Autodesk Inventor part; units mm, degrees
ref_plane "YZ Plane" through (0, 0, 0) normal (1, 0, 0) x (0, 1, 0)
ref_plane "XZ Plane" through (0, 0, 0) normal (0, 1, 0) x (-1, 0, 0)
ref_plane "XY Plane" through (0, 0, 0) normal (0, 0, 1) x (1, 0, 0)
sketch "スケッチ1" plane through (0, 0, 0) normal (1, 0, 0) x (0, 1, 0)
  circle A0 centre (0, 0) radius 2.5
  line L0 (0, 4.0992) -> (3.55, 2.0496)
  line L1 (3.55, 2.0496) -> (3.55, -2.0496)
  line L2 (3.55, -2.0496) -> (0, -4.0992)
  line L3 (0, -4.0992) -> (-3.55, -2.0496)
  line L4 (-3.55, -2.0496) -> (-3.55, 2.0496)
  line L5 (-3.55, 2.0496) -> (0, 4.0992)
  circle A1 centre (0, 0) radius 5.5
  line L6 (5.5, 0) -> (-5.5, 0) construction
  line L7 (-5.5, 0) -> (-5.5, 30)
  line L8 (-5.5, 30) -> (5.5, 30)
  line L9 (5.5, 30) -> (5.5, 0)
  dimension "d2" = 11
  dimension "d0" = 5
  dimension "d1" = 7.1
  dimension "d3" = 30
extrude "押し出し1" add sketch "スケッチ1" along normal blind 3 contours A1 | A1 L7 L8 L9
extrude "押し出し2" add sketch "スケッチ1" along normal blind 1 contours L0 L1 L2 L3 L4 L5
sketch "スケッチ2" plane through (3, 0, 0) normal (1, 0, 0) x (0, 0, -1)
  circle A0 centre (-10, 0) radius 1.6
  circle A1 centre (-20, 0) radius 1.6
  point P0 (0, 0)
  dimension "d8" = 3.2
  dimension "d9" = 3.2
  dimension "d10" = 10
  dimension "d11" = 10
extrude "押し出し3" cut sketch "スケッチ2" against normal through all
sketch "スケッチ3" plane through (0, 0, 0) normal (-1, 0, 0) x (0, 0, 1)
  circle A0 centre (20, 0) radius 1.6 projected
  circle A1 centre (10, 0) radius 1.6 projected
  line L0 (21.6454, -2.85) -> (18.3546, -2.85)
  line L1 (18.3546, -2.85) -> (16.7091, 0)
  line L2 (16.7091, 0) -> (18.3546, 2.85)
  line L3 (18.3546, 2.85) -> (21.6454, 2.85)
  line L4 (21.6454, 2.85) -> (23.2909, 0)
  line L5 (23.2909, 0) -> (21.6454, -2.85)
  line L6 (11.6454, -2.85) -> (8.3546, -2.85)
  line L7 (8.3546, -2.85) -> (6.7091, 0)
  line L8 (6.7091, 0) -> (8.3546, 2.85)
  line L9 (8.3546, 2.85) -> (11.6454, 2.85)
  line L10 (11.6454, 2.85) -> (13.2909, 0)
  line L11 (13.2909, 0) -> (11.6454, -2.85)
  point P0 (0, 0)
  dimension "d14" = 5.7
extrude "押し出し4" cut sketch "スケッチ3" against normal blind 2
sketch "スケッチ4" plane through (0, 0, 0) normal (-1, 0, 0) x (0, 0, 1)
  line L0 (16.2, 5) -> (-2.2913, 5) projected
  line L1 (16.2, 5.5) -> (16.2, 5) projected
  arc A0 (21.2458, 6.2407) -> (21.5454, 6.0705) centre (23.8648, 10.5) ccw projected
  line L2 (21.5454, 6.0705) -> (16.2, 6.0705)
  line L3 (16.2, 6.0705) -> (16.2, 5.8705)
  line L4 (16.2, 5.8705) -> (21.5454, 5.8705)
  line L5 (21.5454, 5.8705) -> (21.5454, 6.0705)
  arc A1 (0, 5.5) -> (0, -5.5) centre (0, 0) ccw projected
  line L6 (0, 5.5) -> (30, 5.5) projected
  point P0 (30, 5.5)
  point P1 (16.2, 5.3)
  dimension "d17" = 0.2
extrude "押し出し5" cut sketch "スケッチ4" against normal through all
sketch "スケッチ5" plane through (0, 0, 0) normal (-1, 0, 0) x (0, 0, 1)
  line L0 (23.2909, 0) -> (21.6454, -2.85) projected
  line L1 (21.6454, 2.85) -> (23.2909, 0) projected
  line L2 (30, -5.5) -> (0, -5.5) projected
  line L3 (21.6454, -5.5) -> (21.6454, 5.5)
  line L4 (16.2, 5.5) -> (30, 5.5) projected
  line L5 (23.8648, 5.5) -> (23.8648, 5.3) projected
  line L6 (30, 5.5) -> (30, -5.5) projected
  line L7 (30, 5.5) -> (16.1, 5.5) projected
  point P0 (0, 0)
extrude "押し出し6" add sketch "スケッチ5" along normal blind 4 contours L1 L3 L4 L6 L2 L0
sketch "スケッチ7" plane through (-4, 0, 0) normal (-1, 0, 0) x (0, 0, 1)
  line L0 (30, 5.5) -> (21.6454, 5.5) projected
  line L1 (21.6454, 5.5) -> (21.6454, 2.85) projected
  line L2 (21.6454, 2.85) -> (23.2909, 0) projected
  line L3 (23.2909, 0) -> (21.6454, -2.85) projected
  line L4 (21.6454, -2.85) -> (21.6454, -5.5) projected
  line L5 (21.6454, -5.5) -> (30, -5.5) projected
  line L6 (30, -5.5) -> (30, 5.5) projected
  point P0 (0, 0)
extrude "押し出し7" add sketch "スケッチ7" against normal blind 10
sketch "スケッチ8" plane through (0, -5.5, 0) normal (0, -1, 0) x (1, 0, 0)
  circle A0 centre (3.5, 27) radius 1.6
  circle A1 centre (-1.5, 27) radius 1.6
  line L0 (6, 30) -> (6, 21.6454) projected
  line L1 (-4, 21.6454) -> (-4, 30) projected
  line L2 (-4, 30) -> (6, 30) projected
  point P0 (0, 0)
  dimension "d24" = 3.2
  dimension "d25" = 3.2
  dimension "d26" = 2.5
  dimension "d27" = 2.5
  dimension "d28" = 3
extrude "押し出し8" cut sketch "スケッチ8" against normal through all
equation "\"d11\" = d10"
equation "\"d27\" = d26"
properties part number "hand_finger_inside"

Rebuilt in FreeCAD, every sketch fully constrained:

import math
import FreeCAD as App
import Part
import Sketcher

V = App.Vector
Q = App.Units.Quantity


def add_polygon(sketch, points):
    """Adds a closed chain of lines whose ends are joined by coincident constraints."""
    first, n = sketch.GeometryCount, len(points)
    for a, b in zip(points, points[1:] + points[:1]):
        sketch.addGeometry(Part.LineSegment(App.Vector(*a, 0), App.Vector(*b, 0)), False)
    for i in range(n):
        sketch.addConstraint(Sketcher.Constraint("Coincident", first + i, 2, first + (i + 1) % n, 1))

doc = App.newDocument("Part")
body = doc.addObject("PartDesign::Body", "Body")

# Sketch on YZ plane
sketch1 = body.newObject("Sketcher::SketchObject", "Sketch")
sketch1.AttachmentSupport = (doc.getObject("YZ_Plane"), [""])
sketch1.MapMode = "FlatFace"
sketch1.addGeometry(Part.ArcOfCircle(Part.Circle(V(0, 0, 0), V(0, 0, 1), 5.5), math.radians(180), math.radians(360)), False)  # 0
sketch1.addGeometry(Part.LineSegment(V(5.5, 0, 0), V(5.5, 30, 0)), False)  # 1
sketch1.addGeometry(Part.LineSegment(V(5.5, 30, 0), V(-5.5, 30, 0)), False)  # 2
sketch1.addGeometry(Part.LineSegment(V(-5.5, 30, 0), V(-5.5, 0, 0)), False)  # 3
add_polygon(sketch1, [(-3.5, 2), (0, 4.1), (3.5, 2), (3.5, -2), (0, -4.1), (-3.5, -2)])  # lines 4-9
sketch1.addConstraint([
    Sketcher.Constraint("Tangent", 0, 2, 1, 1),
    Sketcher.Constraint("Coincident", 1, 2, 2, 1),
    Sketcher.Constraint("Coincident", 2, 2, 3, 1),
    Sketcher.Constraint("Tangent", 3, 2, 0, 1),
    Sketcher.Constraint("Vertical", 1),
    Sketcher.Constraint("Horizontal", 2),
    Sketcher.Constraint("Vertical", 3),
    Sketcher.Constraint("Vertical", 6),
    Sketcher.Constraint("Vertical", 9),
    Sketcher.Constraint("Coincident", 0, 3, -1, 1),
    Sketcher.Constraint("Symmetric", 4, 2, 7, 2, -1, 1),
    Sketcher.Constraint("Symmetric", 5, 2, 8, 2, -1, 1),
    Sketcher.Constraint("PointOnObject", 4, 2, -2),
    Sketcher.Constraint("Parallel", 4, 7),
    Sketcher.Constraint("Horizontal", 6, 2, 8, 2),
    Sketcher.Constraint("Radius", 0, 5.5),
    Sketcher.Constraint("DistanceY", 1, 1, 1, 2, 30.0),
    Sketcher.Constraint("Angle", 4, Q("30 deg")),
    Sketcher.Constraint("DistanceX", 8, 2, 6, 2, 7.1),
    Sketcher.Constraint("DistanceY", 6, 2, 6, 1, 4.0992),
])
pad1 = body.newObject("PartDesign::Pad", "Pad")
pad1.Profile = sketch1
pad1.Length = 3

# Sketch on YZ plane
sketch2 = body.newObject("Sketcher::SketchObject", "Sketch001")
sketch2.AttachmentSupport = (doc.getObject("YZ_Plane"), [""])
sketch2.MapMode = "FlatFace"
add_polygon(sketch2, [(3.5, 2), (0, 4.1), (-3.5, 2), (-3.5, -2), (0, -4.1), (3.5, -2)])  # lines 0-5
sketch2.addGeometry(Part.Circle(V(0, 0, 0), V(0, 0, 1), 2.5), False)  # 6
sketch2.addConstraint([
    Sketcher.Constraint("Vertical", 2),
    Sketcher.Constraint("Vertical", 5),
    Sketcher.Constraint("Coincident", 6, 3, -1, 1),
    Sketcher.Constraint("Symmetric", 0, 2, 3, 2, -1, 1),
    Sketcher.Constraint("Symmetric", 1, 2, 4, 2, -1, 1),
    Sketcher.Constraint("PointOnObject", 0, 2, -2),
    Sketcher.Constraint("Parallel", 0, 3),
    Sketcher.Constraint("Horizontal", 2, 2, 4, 2),
    Sketcher.Constraint("Diameter", 6, 5.0),
    Sketcher.Constraint("Angle", 3, Q("-30 deg")),
    Sketcher.Constraint("DistanceX", 2, 2, 4, 2, 7.1),
    Sketcher.Constraint("DistanceY", 2, 2, 2, 1, 4.0992),
])
pad2 = body.newObject("PartDesign::Pad", "Pad001")
pad2.Profile = sketch2
pad2.Length = 1

# Sketch on YZ plane
sketch3 = body.newObject("Sketcher::SketchObject", "Sketch002")
sketch3.AttachmentSupport = (doc.getObject("YZ_Plane"), [""])
sketch3.MapMode = "FlatFace"
sketch3.AttachmentOffset = App.Placement(V(0, 0, 3), App.Rotation())
sketch3.addGeometry([
    Part.Circle(V(0, 10, 0), V(0, 0, 1), 1.6),
    Part.Circle(V(0, 20, 0), V(0, 0, 1), 1.6),
], False)
sketch3.addConstraint([
    Sketcher.Constraint("Equal", 0, 1),
    Sketcher.Constraint("PointOnObject", 0, 3, -2),
    Sketcher.Constraint("PointOnObject", 1, 3, -2),
    Sketcher.Constraint("Diameter", 0, 3.2),
    Sketcher.Constraint("DistanceY", -1, 1, 0, 3, 10.0),
    Sketcher.Constraint("DistanceY", 0, 3, 1, 3, 10.0),
])
pocket1 = body.newObject("PartDesign::Pocket", "Pocket")
pocket1.Profile = sketch3
pocket1.Type = "ThroughAll"

# Sketch on YZ plane
sketch4 = body.newObject("Sketcher::SketchObject", "Sketch003")
sketch4.AttachmentSupport = (doc.getObject("YZ_Plane"), [""])
sketch4.MapMode = "FlatFace"
add_polygon(sketch4, [(-2.9, 18.4), (-2.9, 21.6), (0, 23.3), (2.9, 21.6), (2.9, 18.4), (0, 16.7)])  # lines 0-5
sketch4.addGeometry(Part.Circle(V(0, 20, 0), V(0, 0, 1), 1.6), False)  # 6
add_polygon(sketch4, [(-2.9, 8.4), (-2.9, 11.6), (0, 13.3), (2.9, 11.6), (2.9, 8.4), (0, 6.7)])  # lines 7-12
sketch4.addGeometry(Part.Circle(V(0, 10, 0), V(0, 0, 1), 1.6), False)  # 13
sketch4.addConstraint([
    Sketcher.Constraint("Vertical", 0),
    Sketcher.Constraint("Vertical", 3),
    Sketcher.Constraint("Vertical", 7),
    Sketcher.Constraint("Vertical", 10),
    Sketcher.Constraint("Equal", 6, 13),
    Sketcher.Constraint("Symmetric", 0, 2, 2, 2, -2),
    Sketcher.Constraint("Symmetric", 7, 2, 9, 2, -2),
    Sketcher.Constraint("PointOnObject", 6, 3, -2),
    Sketcher.Constraint("PointOnObject", 13, 3, -2),
    Sketcher.Constraint("PointOnObject", 1, 2, -2),
    Sketcher.Constraint("PointOnObject", 4, 2, -2),
    Sketcher.Constraint("PointOnObject", 8, 2, -2),
    Sketcher.Constraint("PointOnObject", 11, 2, -2),
    Sketcher.Constraint("Parallel", 1, 4),
    Sketcher.Constraint("Parallel", 2, 5),
    Sketcher.Constraint("Parallel", 4, 8),
    Sketcher.Constraint("Parallel", 8, 11),
    Sketcher.Constraint("Parallel", 9, 12),
    Sketcher.Constraint("Vertical", 5, 2, 7, 2),
    Sketcher.Constraint("Equal", 3, 7),
    Sketcher.Constraint("Diameter", 6, 3.2),
    Sketcher.Constraint("DistanceX", 0, 2, 2, 2, 5.7),
    Sketcher.Constraint("Angle", 1, Q("30.0008 deg")),
    Sketcher.Constraint("DistanceY", -1, 1, 6, 3, 20.0),
    Sketcher.Constraint("DistanceY", -1, 1, 13, 3, 10.0),
    Sketcher.Constraint("DistanceY", 0, 1, 0, 2, 3.2908),
    Sketcher.Constraint("DistanceY", -1, 1, 1, 2, 23.291),
    Sketcher.Constraint("DistanceY", -1, 1, 8, 2, 13.291),
])
pocket2 = body.newObject("PartDesign::Pocket", "Pocket001")
pocket2.Profile = sketch4
pocket2.Length = 2
pocket2.Reversed = True

# Sketch on YZ plane
sketch5 = body.newObject("Sketcher::SketchObject", "Sketch004")
sketch5.AttachmentSupport = (doc.getObject("YZ_Plane"), [""])
sketch5.MapMode = "FlatFace"
sketch5.addGeometry(Part.LineSegment(V(5, -2.29, 0), V(5, 16.2, 0)), False)  # 0
sketch5.addGeometry(Part.LineSegment(V(5, 16.2, 0), V(5.5, 16.2, 0)), False)  # 1
sketch5.addGeometry(Part.LineSegment(V(5.5, 16.2, 0), V(5.5, 0, 0)), False)  # 2
sketch5.addGeometry(Part.ArcOfCircle(Part.Circle(V(0, 0, 0), V(0, 0, 1), 5.5), math.radians(-25), math.radians(0)), False)  # 3
add_polygon(sketch5, [(5.87, 21.55), (6.07, 21.55), (6.07, 16.2), (5.87, 16.2)])  # lines 4-7
sketch5.addConstraint([
    Sketcher.Constraint("Coincident", 0, 2, 1, 1),
    Sketcher.Constraint("Coincident", 1, 2, 2, 1),
    Sketcher.Constraint("Tangent", 2, 2, 3, 2),
    Sketcher.Constraint("Coincident", 3, 1, 0, 1),
    Sketcher.Constraint("Vertical", 0),
    Sketcher.Constraint("Horizontal", 1),
    Sketcher.Constraint("Vertical", 2),
    Sketcher.Constraint("Horizontal", 4),
    Sketcher.Constraint("Vertical", 5),
    Sketcher.Constraint("Horizontal", 6),
    Sketcher.Constraint("Vertical", 7),
    Sketcher.Constraint("Coincident", 3, 3, -1, 1),
    Sketcher.Constraint("Horizontal", 1, 2, 5, 2),
    Sketcher.Constraint("DistanceX", 4, 1, 4, 2, 0.2),
    Sketcher.Constraint("Radius", 3, 5.5),
    Sketcher.Constraint("DistanceX", 1, 1, 1, 2, 0.5),
    Sketcher.Constraint("DistanceY", 2, 2, 2, 1, 16.2),
    Sketcher.Constraint("DistanceY", 5, 2, 5, 1, 5.3454),
    Sketcher.Constraint("DistanceX", -1, 1, 4, 2, 6.0705),
])
pocket3 = body.newObject("PartDesign::Pocket", "Pocket002")
pocket3.Profile = sketch5
pocket3.Type = "ThroughAll"
pocket3.Reversed = True

# Sketch on YZ plane
sketch6 = body.newObject("Sketcher::SketchObject", "Sketch005")
sketch6.AttachmentSupport = (doc.getObject("YZ_Plane"), [""])
sketch6.MapMode = "FlatFace"
add_polygon(sketch6, [(2.9, 21.6), (0, 23.3), (-2.9, 21.6), (-5.5, 21.6), (-5.5, 30), (5.5, 30), (5.5, 21.6)])  # lines 0-6
sketch6.addConstraint([
    Sketcher.Constraint("Horizontal", 2),
    Sketcher.Constraint("Vertical", 3),
    Sketcher.Constraint("Horizontal", 4),
    Sketcher.Constraint("Vertical", 5),
    Sketcher.Constraint("Horizontal", 6),
    Sketcher.Constraint("Symmetric", 2, 2, 5, 2, -2),
    Sketcher.Constraint("PointOnObject", 0, 2, -2),
    Sketcher.Constraint("Equal", 2, 6),
    Sketcher.Constraint("DistanceX", 4, 1, 4, 2, 11.0),
    Sketcher.Constraint("Angle", 0, Q("149.9992 deg")),
    Sketcher.Constraint("DistanceY", -1, 1, 3, 2, 30.0),
    Sketcher.Constraint("DistanceX", 2, 2, 2, 1, 2.65),
    Sketcher.Constraint("DistanceY", 3, 1, 3, 2, 8.3546),
])
pad3 = body.newObject("PartDesign::Pad", "Pad002")
pad3.Profile = sketch6
pad3.Length = 4
pad3.Reversed = True

# Sketch on YZ plane
sketch7 = body.newObject("Sketcher::SketchObject", "Sketch006")
sketch7.AttachmentSupport = (doc.getObject("YZ_Plane"), [""])
sketch7.MapMode = "FlatFace"
sketch7.AttachmentOffset = App.Placement(V(0, 0, -4), App.Rotation())
add_polygon(sketch7, [(-5.5, 30), (5.5, 30), (5.5, 21.6), (2.9, 21.6), (0, 23.3), (-2.9, 21.6), (-5.5, 21.6)])  # lines 0-6
sketch7.addConstraint([
    Sketcher.Constraint("Horizontal", 0),
    Sketcher.Constraint("Vertical", 1),
    Sketcher.Constraint("Horizontal", 2),
    Sketcher.Constraint("Horizontal", 5),
    Sketcher.Constraint("Vertical", 6),
    Sketcher.Constraint("Symmetric", 2, 2, 4, 2, -2),
    Sketcher.Constraint("PointOnObject", 3, 2, -2),
    Sketcher.Constraint("Equal", 2, 5),
    Sketcher.Constraint("DistanceX", 0, 1, 0, 2, 11.0),
    Sketcher.Constraint("Angle", 3, Q("149.9992 deg")),
    Sketcher.Constraint("DistanceY", -1, 1, 0, 2, 30.0),
    Sketcher.Constraint("DistanceX", 2, 2, 2, 1, 2.65),
    Sketcher.Constraint("DistanceY", 1, 2, 1, 1, 8.3546),
])
pad4 = body.newObject("PartDesign::Pad", "Pad003")
pad4.Profile = sketch7
pad4.Length = 10

# Sketch on XZ plane
sketch8 = body.newObject("Sketcher::SketchObject", "Sketch007")
sketch8.AttachmentSupport = (doc.getObject("XZ_Plane"), [""])
sketch8.MapMode = "FlatFace"
sketch8.AttachmentOffset = App.Placement(V(0, 0, 5.5), App.Rotation())
sketch8.addGeometry([
    Part.Circle(V(3.5, 27, 0), V(0, 0, 1), 1.6),
    Part.Circle(V(-1.5, 27, 0), V(0, 0, 1), 1.6),
], False)
sketch8.addConstraint([
    Sketcher.Constraint("Equal", 0, 1),
    Sketcher.Constraint("Horizontal", 0, 3, 1, 3),
    Sketcher.Constraint("Diameter", 0, 3.2),
    Sketcher.Constraint("DistanceY", -1, 1, 0, 3, 27.0),
    Sketcher.Constraint("DistanceX", 1, 3, 0, 3, 5.0),
    Sketcher.Constraint("DistanceX", -1, 1, 0, 3, 3.5),
])
pocket4 = body.newObject("PartDesign::Pocket", "Pocket003")
pocket4.Profile = sketch8
pocket4.Type = "ThroughAll"

doc.recompute()
